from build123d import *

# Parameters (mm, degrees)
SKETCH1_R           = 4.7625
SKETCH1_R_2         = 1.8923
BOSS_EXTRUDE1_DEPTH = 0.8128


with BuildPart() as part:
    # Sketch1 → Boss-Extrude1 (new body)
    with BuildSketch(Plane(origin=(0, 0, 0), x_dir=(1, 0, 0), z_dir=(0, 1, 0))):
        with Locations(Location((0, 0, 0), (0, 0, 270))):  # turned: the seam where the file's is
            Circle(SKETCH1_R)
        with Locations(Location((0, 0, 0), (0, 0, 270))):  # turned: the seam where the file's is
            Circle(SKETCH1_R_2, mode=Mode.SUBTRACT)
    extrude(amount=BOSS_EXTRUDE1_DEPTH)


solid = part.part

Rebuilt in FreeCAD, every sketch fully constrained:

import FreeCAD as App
import Part
import Sketcher
from FreeCAD import Vector
Q = App.Units.Quantity

doc = App.newDocument("Part")
params = doc.addObject("Spreadsheet::Sheet", "Params")
for row, (alias, value) in enumerate([
    ("sketch1_diameter", "0.375 in"),
    ("sketch1_diameter2", "0.149 in"),
    ("pad1_length", "0.032 in"),
], start=1):
    params.set(f"A{row}", alias)
    params.set(f"B{row}", "=" + value)
    params.setAlias(f"B{row}", alias)

body = doc.addObject("PartDesign::Body", "Body")

sketch1 = body.newObject("Sketcher::SketchObject", "Sketch")
sketch1.AttachmentSupport = (doc.getObject("XZ_Plane"), [""])
sketch1.MapMode = "FlatFace"
sketch1.addGeometry([
    Part.Circle(Vector(0, 0, 0), Vector(0, 0, 1), 4.8),
    Part.Circle(Vector(0, 0, 0), Vector(0, 0, 1), 1.9),
], False)
sketch1.addConstraint([
    Sketcher.Constraint("Coincident", 0, 3, -1, 1),
    Sketcher.Constraint("Coincident", 1, 3, -1, 1),
    Sketcher.Constraint("Diameter", 0, Q("0.375 in")),
    Sketcher.Constraint("Diameter", 1, Q("0.149 in")),
])
sketch1.setExpression("Constraints[2]", "Params.sketch1_diameter")
sketch1.setExpression("Constraints[3]", "Params.sketch1_diameter2")
pad1 = body.newObject("PartDesign::Pad", "Pad")
pad1.Profile = sketch1
pad1.setExpression("Length", "Params.pad1_length")
pad1.Reversed = True

doc.recompute()
